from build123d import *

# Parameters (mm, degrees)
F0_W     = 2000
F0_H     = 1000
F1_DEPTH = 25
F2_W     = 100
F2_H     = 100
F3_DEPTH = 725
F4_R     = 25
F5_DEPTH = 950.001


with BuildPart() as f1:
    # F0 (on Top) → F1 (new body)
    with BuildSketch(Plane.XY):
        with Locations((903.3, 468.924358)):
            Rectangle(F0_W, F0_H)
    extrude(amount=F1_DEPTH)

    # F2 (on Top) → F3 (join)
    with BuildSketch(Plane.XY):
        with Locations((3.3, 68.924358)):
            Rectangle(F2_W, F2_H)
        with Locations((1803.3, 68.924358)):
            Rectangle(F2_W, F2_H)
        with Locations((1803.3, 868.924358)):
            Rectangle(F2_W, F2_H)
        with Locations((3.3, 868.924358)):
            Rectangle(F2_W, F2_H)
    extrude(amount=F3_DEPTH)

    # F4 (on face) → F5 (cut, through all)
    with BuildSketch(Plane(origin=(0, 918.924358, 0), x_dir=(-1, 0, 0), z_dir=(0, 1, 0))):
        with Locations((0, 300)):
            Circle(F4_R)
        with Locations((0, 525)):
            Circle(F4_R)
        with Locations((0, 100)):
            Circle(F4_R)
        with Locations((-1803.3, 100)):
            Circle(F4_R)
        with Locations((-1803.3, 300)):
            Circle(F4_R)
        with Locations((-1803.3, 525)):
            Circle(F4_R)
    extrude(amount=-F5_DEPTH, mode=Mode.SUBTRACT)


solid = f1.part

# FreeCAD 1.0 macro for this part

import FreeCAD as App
import Part
import Sketcher

V = App.Vector
Q = App.Units.Quantity


def add_polygon(sketch, points):
    """Adds a closed chain of lines whose ends are joined by coincident constraints."""
    first, n = sketch.GeometryCount, len(points)
    for a, b in zip(points, points[1:] + points[:1]):
        sketch.addGeometry(Part.LineSegment(App.Vector(*a, 0), App.Vector(*b, 0)), False)
    for i in range(n):
        sketch.addConstraint(Sketcher.Constraint("Coincident", first + i, 2, first + (i + 1) % n, 1))

doc = App.newDocument("Part")
body = doc.addObject("PartDesign::Body", "Body")

# Sketch on XY plane
sketch1 = body.newObject("Sketcher::SketchObject", "Sketch")
sketch1.AttachmentSupport = (doc.getObject("XY_Plane"), [""])
sketch1.MapMode = "FlatFace"
add_polygon(sketch1, [(-97, 969), (-97, -31), (1903, -31), (1903, 969)])  # lines 0-3
sketch1.addConstraint([
    Sketcher.Constraint("Vertical", 0),
    Sketcher.Constraint("Horizontal", 1),
    Sketcher.Constraint("Vertical", 2),
    Sketcher.Constraint("Horizontal", 3),
    Sketcher.Constraint("DistanceX", 1, 1, 1, 2, Q("2000 mm")),
    Sketcher.Constraint("DistanceY", 0, 2, 0, 1, Q("1000 mm")),
    Sketcher.Constraint("DistanceX", 0, 2, -1, 1, Q("96.7 mm")),
    Sketcher.Constraint("DistanceY", 0, 2, -1, 1, Q("31.075642 mm")),
])
pad1 = body.newObject("PartDesign::Pad", "Pad")
pad1.Profile = sketch1
pad1.Length = 25

# Sketch on XY plane
sketch2 = body.newObject("Sketcher::SketchObject", "Sketch001")
sketch2.AttachmentSupport = (doc.getObject("XY_Plane"), [""])
sketch2.MapMode = "FlatFace"
add_polygon(sketch2, [(-47, 119), (-47, 19), (53, 19), (53, 119)])  # lines 0-3
add_polygon(sketch2, [(1753, 119), (1753, 19), (1853, 19), (1853, 119)])  # lines 4-7
add_polygon(sketch2, [(1753, 919), (1753, 819), (1853, 819), (1853, 919)])  # lines 8-11
add_polygon(sketch2, [(-47, 919), (-47, 819), (53, 819), (53, 919)])  # lines 12-15
sketch2.addConstraint([
    Sketcher.Constraint("Vertical", 0),
    Sketcher.Constraint("Horizontal", 1),
    Sketcher.Constraint("Vertical", 2),
    Sketcher.Constraint("Horizontal", 3),
    Sketcher.Constraint("Vertical", 4),
    Sketcher.Constraint("Horizontal", 5),
    Sketcher.Constraint("Vertical", 6),
    Sketcher.Constraint("Horizontal", 7),
    Sketcher.Constraint("Vertical", 8),
    Sketcher.Constraint("Horizontal", 9),
    Sketcher.Constraint("Vertical", 10),
    Sketcher.Constraint("Horizontal", 11),
    Sketcher.Constraint("Vertical", 12),
    Sketcher.Constraint("Horizontal", 13),
    Sketcher.Constraint("Vertical", 14),
    Sketcher.Constraint("Horizontal", 15),
    Sketcher.Constraint("Horizontal", 1, 2, 4, 2),
    Sketcher.Constraint("Horizontal", 3, 2, 6, 2),
    Sketcher.Constraint("Horizontal", 9, 2, 12, 2),
    Sketcher.Constraint("Horizontal", 11, 2, 14, 2),
    Sketcher.Constraint("Vertical", 7, 2, 8, 2),
    Sketcher.Constraint("Vertical", 6, 2, 9, 2),
    Sketcher.Constraint("Vertical", 3, 2, 12, 2),
    Sketcher.Constraint("Vertical", 2, 2, 13, 2),
    Sketcher.Constraint("Equal", 3, 5),
    Sketcher.Constraint("Equal", 15, 0),
    Sketcher.Constraint("Equal", 6, 8),
    Sketcher.Constraint("DistanceX", 1, 1, 1, 2, Q("100 mm")),
    Sketcher.Constraint("DistanceX", 1, 2, 4, 2, Q("1700 mm")),
    Sketcher.Constraint("DistanceY", 7, 2, 8, 2, Q("700 mm")),
    Sketcher.Constraint("DistanceX", 0, 2, -1, 1, Q("46.7 mm")),
    Sketcher.Constraint("DistanceY", -1, 1, 0, 2, Q("18.924358 mm")),
])
pad2 = body.newObject("PartDesign::Pad", "Pad001")
pad2.Profile = sketch2
pad2.Length = 725

# Sketch on XZ plane
sketch3 = body.newObject("Sketcher::SketchObject", "Sketch002")
sketch3.AttachmentSupport = (doc.getObject("XZ_Plane"), [""])
sketch3.MapMode = "FlatFace"
sketch3.AttachmentOffset = App.Placement(V(0, 0, -918.924358), App.Rotation())
sketch3.addGeometry([
    Part.Circle(V(0, 300, 0), V(0, 0, 1), 25),  # 0
    Part.Circle(V(0, 525, 0), V(0, 0, 1), 25),  # 1
    Part.Circle(V(0, 100, 0), V(0, 0, 1), 25),  # 2
    Part.Circle(V(1803, 100, 0), V(0, 0, 1), 25),  # 3
    Part.Circle(V(1803, 300, 0), V(0, 0, 1), 25),  # 4
    Part.Circle(V(1803, 525, 0), V(0, 0, 1), 25),  # 5
], False)
sketch3.addConstraint([
    Sketcher.Constraint("Equal", 0, 1),
    Sketcher.Constraint("Equal", 1, 2),
    Sketcher.Constraint("Equal", 2, 3),
    Sketcher.Constraint("Equal", 3, 4),
    Sketcher.Constraint("Equal", 4, 5),
    Sketcher.Constraint("PointOnObject", 0, 3, -2),
    Sketcher.Constraint("PointOnObject", 1, 3, -2),
    Sketcher.Constraint("PointOnObject", 2, 3, -2),
    Sketcher.Constraint("Horizontal", 2, 3, 3, 3),
    Sketcher.Constraint("Horizontal", 0, 3, 4, 3),
    Sketcher.Constraint("Horizontal", 1, 3, 5, 3),
    Sketcher.Constraint("Vertical", 3, 3, 4, 3),
    Sketcher.Constraint("Vertical", 4, 3, 5, 3),
    Sketcher.Constraint("Diameter", 0, Q("50 mm")),
    Sketcher.Constraint("DistanceY", -1, 1, 0, 3, Q("300 mm")),
    Sketcher.Constraint("DistanceY", -1, 1, 1, 3, Q("525 mm")),
    Sketcher.Constraint("DistanceY", -1, 1, 2, 3, Q("100 mm")),
    Sketcher.Constraint("DistanceX", -1, 1, 3, 3, Q("1803.3 mm")),
])
pocket1 = body.newObject("PartDesign::Pocket", "Pocket")
pocket1.Profile = sketch3
pocket1.Type = "ThroughAll"
pocket1.Reversed = True

doc.recompute()
